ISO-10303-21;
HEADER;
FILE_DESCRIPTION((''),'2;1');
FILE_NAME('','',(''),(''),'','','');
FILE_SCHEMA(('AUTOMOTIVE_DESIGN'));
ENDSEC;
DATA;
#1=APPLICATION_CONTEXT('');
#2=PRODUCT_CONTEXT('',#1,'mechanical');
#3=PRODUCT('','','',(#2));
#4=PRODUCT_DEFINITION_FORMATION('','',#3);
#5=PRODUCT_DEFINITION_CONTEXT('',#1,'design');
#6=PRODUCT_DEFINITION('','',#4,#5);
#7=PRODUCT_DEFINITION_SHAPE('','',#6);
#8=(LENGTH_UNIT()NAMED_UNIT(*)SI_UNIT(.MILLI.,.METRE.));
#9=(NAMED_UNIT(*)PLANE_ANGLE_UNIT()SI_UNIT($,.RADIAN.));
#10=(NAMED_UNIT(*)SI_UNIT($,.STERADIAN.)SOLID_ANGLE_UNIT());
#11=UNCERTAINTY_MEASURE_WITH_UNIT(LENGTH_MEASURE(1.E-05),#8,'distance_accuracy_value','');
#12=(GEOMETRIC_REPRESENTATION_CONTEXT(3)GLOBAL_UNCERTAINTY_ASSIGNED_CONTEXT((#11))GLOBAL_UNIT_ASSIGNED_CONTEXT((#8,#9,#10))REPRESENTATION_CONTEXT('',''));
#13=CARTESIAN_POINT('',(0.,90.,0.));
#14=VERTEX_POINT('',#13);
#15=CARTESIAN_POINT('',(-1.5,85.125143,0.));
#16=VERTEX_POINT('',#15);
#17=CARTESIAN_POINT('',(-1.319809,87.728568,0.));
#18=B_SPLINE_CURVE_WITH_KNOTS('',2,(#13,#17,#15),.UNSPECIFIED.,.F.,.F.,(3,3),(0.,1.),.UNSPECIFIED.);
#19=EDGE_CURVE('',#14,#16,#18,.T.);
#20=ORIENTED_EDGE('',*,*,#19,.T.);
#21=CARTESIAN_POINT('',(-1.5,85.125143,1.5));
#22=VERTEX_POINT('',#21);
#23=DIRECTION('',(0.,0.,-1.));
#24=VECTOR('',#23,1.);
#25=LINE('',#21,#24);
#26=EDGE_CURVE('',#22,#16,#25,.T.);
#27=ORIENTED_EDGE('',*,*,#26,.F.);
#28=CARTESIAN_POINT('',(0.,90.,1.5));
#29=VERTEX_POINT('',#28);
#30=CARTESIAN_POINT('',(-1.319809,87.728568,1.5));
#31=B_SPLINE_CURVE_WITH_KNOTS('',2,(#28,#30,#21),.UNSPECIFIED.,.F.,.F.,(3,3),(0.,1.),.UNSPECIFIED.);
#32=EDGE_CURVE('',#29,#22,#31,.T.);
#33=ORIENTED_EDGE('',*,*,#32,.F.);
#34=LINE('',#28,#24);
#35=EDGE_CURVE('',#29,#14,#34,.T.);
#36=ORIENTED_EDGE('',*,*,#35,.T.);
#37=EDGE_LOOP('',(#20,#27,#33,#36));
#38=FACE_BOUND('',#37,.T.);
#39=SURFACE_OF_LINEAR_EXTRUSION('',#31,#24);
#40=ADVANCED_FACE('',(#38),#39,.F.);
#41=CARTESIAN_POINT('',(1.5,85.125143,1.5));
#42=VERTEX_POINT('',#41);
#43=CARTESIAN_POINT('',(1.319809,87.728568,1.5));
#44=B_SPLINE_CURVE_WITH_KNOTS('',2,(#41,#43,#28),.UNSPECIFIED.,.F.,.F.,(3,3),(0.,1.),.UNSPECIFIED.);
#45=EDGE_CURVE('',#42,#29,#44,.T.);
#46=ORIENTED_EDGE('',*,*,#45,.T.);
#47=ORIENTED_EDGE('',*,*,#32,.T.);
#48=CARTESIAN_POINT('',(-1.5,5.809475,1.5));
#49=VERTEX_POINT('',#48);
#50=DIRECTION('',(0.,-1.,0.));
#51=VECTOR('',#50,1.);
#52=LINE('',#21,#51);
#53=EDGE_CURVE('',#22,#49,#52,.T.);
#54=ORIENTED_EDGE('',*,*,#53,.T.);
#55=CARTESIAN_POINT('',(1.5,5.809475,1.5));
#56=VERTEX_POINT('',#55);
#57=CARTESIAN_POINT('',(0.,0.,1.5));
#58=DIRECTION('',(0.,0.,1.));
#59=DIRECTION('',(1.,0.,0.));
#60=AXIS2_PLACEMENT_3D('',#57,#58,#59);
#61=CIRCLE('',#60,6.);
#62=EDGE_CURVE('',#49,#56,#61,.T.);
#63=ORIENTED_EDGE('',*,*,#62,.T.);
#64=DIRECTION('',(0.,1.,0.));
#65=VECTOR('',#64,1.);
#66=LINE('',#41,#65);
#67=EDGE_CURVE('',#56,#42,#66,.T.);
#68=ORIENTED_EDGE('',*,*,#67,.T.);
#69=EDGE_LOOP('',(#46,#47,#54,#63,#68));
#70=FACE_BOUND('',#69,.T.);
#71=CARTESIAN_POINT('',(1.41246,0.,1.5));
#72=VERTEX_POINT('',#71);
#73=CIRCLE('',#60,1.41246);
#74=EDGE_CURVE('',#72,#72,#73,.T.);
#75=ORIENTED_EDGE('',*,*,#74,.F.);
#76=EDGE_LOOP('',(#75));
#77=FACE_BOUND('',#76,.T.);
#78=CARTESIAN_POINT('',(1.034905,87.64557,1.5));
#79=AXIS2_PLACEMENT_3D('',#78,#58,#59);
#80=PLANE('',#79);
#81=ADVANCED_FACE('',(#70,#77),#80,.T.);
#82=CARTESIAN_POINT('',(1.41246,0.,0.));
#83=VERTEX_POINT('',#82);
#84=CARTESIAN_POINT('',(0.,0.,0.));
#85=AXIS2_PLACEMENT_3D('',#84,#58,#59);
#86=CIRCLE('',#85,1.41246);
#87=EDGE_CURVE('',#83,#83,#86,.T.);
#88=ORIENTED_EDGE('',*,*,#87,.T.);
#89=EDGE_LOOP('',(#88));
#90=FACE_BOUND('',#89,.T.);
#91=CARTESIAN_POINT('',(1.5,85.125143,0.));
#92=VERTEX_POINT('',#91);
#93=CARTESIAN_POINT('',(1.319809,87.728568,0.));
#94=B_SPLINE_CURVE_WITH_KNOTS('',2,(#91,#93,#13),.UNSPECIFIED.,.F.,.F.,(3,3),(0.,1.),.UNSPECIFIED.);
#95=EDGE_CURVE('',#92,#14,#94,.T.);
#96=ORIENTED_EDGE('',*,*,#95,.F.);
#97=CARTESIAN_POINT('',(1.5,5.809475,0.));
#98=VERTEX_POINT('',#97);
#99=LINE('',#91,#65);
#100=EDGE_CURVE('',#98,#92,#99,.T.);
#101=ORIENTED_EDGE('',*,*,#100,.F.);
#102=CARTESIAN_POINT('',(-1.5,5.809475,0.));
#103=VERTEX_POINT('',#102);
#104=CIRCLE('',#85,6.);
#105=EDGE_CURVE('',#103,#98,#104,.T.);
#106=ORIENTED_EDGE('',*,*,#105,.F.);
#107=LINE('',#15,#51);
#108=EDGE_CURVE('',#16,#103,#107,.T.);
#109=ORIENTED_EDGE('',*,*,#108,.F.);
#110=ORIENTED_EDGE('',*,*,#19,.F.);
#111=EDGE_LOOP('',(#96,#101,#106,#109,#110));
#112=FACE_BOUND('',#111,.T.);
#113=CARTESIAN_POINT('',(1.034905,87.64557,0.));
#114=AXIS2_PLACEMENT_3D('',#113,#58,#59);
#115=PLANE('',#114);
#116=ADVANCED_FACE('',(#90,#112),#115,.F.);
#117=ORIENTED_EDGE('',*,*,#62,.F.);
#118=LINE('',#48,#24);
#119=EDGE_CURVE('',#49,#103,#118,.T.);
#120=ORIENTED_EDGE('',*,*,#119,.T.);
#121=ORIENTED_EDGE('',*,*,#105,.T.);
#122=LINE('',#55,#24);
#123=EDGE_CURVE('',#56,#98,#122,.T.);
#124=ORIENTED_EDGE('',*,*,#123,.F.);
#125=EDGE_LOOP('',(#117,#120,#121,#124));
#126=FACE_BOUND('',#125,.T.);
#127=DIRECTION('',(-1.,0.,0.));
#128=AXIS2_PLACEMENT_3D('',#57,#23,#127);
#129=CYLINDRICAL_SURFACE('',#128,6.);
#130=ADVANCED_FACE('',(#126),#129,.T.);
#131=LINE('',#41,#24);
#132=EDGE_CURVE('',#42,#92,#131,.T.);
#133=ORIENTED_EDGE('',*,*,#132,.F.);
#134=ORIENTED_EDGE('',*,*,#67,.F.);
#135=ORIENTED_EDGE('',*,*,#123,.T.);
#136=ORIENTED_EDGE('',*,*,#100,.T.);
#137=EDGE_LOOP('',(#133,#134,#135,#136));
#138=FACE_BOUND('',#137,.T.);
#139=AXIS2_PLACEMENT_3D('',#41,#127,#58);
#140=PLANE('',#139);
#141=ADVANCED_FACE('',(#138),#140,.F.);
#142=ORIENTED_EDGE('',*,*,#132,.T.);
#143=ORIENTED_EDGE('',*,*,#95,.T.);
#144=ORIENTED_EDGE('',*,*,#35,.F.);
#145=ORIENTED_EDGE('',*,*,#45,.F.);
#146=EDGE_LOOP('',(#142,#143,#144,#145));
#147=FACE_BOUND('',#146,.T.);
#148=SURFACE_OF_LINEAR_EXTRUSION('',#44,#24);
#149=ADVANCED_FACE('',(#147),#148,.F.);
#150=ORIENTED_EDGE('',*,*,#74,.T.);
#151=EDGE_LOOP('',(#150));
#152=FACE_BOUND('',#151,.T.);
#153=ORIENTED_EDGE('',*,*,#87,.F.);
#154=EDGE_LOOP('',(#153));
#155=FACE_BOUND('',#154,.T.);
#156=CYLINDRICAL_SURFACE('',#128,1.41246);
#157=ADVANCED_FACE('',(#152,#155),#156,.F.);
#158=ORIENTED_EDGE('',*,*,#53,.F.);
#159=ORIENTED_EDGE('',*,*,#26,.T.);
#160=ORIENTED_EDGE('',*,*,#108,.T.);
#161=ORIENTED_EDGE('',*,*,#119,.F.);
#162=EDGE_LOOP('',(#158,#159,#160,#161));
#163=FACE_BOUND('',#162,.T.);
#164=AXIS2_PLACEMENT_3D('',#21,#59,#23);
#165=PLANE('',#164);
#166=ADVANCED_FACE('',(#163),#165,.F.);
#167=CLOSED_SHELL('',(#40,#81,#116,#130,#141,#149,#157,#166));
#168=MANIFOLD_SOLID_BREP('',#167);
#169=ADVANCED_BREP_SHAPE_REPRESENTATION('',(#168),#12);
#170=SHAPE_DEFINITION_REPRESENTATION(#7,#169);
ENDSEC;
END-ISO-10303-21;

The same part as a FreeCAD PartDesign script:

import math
import FreeCAD as App
import Part
import Sketcher

V = App.Vector
Q = App.Units.Quantity

doc = App.newDocument("Part")
params = doc.addObject("Spreadsheet::Sheet", "Params")
for row, (alias, value) in enumerate([
    ("sketch1_radius", "6 mm"),
    ("pad1_length", "1.5 mm"),
], start=1):
    params.set(f"A{row}", alias)
    params.set(f"B{row}", "=" + value)
    params.setAlias(f"B{row}", alias)

body = doc.addObject("PartDesign::Body", "Body")

sketch1 = body.newObject("Sketcher::SketchObject", "Sketch")
sketch1.AttachmentSupport = (doc.getObject("XY_Plane"), [""])
sketch1.MapMode = "FlatFace"
sketch1.addGeometry([
    Part.LineSegment(V(-1.5, 85.125143, 0), V(-1.5, 5.809475, 0)),
    Part.ArcOfCircle(Part.Circle(V(0, 0, 0), V(0, 0, 1), 6), math.radians(104.477512), math.radians(435.522488)),
    Part.LineSegment(V(1.5, 5.809475, 0), V(1.5, 85.125143, 0)),
    Part.BSplineCurve([V(0, 90, 0), V(1.319809, 87.728568, 0), V(1.5, 85.125143, 0)], [3, 3], [0, 1], False, 2, [1, 1, 1], False),
    Part.BSplineCurve([V(0, 90, 0), V(-1.319809, 87.728568, 0), V(-1.5, 85.125143, 0)], [3, 3], [0, 1], False, 2, [1, 1, 1], False),
    Part.Circle(V(0, 0, 0), V(0, 0, 1), 1.41246),
], False)
sketch1.addConstraint([
    Sketcher.Constraint("Block", 3),
    Sketcher.Constraint("Block", 4),
    Sketcher.Constraint("Coincident", 0, 2, 1, 1),
    Sketcher.Constraint("Coincident", 1, 2, 2, 1),
    Sketcher.Constraint("Coincident", 2, 2, 3, 2),
    Sketcher.Constraint("Coincident", 4, 2, 0, 1),
    Sketcher.Constraint("Vertical", 0),
    Sketcher.Constraint("Vertical", 2),
    Sketcher.Constraint("Coincident", 1, 3, -1, 1),
    Sketcher.Constraint("Coincident", 5, 3, -1, 1),
    Sketcher.Constraint("Radius", 1, Q("6 mm")),
    Sketcher.Constraint("Diameter", 5, Q("2.82492 mm")),
])
sketch1.setExpression("Constraints[10]", "Params.sketch1_radius")
pad1 = body.newObject("PartDesign::Pad", "Pad")
pad1.Profile = sketch1
pad1.setExpression("Length", "Params.pad1_length")

doc.recompute()
